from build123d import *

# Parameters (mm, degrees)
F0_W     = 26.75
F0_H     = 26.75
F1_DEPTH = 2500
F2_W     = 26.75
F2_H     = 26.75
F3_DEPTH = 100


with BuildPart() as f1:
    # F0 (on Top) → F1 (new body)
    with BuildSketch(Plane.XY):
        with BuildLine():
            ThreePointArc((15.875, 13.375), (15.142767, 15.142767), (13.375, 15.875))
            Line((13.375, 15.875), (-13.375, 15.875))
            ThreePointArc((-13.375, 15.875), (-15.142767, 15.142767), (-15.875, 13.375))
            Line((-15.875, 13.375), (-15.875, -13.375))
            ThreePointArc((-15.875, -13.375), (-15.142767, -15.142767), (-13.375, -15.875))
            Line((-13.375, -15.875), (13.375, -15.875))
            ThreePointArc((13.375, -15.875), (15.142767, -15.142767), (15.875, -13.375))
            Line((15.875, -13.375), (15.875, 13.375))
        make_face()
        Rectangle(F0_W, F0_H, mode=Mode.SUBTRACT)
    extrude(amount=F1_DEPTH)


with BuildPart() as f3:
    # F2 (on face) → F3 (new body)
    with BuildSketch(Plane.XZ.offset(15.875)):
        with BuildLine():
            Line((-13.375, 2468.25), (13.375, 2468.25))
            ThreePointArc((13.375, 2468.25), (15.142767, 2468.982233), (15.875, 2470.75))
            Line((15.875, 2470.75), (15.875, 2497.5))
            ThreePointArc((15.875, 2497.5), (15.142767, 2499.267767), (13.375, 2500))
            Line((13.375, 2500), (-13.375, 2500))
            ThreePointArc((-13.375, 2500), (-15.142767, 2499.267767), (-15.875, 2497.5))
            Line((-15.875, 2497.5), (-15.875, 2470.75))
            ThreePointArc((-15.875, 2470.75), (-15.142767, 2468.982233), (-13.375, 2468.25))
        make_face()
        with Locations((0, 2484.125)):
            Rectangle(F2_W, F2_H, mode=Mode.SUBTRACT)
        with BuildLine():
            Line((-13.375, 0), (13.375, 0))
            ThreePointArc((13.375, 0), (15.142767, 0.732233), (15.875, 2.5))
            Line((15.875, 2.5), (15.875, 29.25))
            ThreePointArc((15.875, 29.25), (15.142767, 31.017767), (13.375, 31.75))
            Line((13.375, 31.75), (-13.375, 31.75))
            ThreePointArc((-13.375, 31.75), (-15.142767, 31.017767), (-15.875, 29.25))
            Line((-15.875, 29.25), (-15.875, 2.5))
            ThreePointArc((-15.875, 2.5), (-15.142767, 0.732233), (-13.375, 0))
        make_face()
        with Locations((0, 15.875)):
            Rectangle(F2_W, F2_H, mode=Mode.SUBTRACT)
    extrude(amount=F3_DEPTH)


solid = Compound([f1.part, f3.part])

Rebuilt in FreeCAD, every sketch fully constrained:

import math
import FreeCAD as App
import Part
import Sketcher

V = App.Vector


def add_polygon(sketch, points):
    """Adds a closed chain of lines whose ends are joined by coincident constraints."""
    first, n = sketch.GeometryCount, len(points)
    for a, b in zip(points, points[1:] + points[:1]):
        sketch.addGeometry(Part.LineSegment(App.Vector(*a, 0), App.Vector(*b, 0)), False)
    for i in range(n):
        sketch.addConstraint(Sketcher.Constraint("Coincident", first + i, 2, first + (i + 1) % n, 1))

doc = App.newDocument("Part")
body = doc.addObject("PartDesign::Body", "Body")

# Sketch on XY plane
sketch1 = body.newObject("Sketcher::SketchObject", "Sketch")
sketch1.AttachmentSupport = (doc.getObject("XY_Plane"), [""])
sketch1.MapMode = "FlatFace"
sketch1.addGeometry(Part.ArcOfCircle(Part.Circle(V(13.4, 13.4, 0), V(0, 0, 1), 2.5), math.radians(0), math.radians(90)), False)  # 0
sketch1.addGeometry(Part.LineSegment(V(13.4, 15.9, 0), V(-13.4, 15.9, 0)), False)  # 1
sketch1.addGeometry(Part.ArcOfCircle(Part.Circle(V(-13.4, 13.4, 0), V(0, 0, 1), 2.5), math.radians(90), math.radians(180)), False)  # 2
sketch1.addGeometry(Part.LineSegment(V(-15.9, 13.4, 0), V(-15.9, -13.4, 0)), False)  # 3
sketch1.addGeometry(Part.ArcOfCircle(Part.Circle(V(-13.4, -13.4, 0), V(0, 0, 1), 2.5), math.radians(180), math.radians(270)), False)  # 4
sketch1.addGeometry(Part.LineSegment(V(-13.4, -15.9, 0), V(13.4, -15.9, 0)), False)  # 5
sketch1.addGeometry(Part.ArcOfCircle(Part.Circle(V(13.4, -13.4, 0), V(0, 0, 1), 2.5), math.radians(-90), math.radians(0)), False)  # 6
sketch1.addGeometry(Part.LineSegment(V(15.9, -13.4, 0), V(15.9, 13.4, 0)), False)  # 7
add_polygon(sketch1, [(13.4, -13.4), (-13.4, -13.4), (-13.4, 13.4), (13.4, 13.4)])  # lines 8-11
sketch1.addConstraint(Sketcher.Constraint("Tangent", 0, 2, 1, 1))
sketch1.addConstraint(Sketcher.Constraint("Tangent", 1, 2, 2, 1))
sketch1.addConstraint(Sketcher.Constraint("Tangent", 2, 2, 3, 1))
sketch1.addConstraint(Sketcher.Constraint("Tangent", 3, 2, 4, 1))
sketch1.addConstraint(Sketcher.Constraint("Tangent", 4, 2, 5, 1))
sketch1.addConstraint(Sketcher.Constraint("Tangent", 5, 2, 6, 1))
sketch1.addConstraint(Sketcher.Constraint("Tangent", 6, 2, 7, 1))
sketch1.addConstraint(Sketcher.Constraint("Tangent", 7, 2, 0, 1))
sketch1.addConstraint(Sketcher.Constraint("Horizontal", 1))
sketch1.addConstraint(Sketcher.Constraint("Vertical", 3))
sketch1.addConstraint(Sketcher.Constraint("Horizontal", 5))
sketch1.addConstraint(Sketcher.Constraint("Vertical", 7))
sketch1.addConstraint(Sketcher.Constraint("Horizontal", 8))
sketch1.addConstraint(Sketcher.Constraint("Vertical", 9))
sketch1.addConstraint(Sketcher.Constraint("Horizontal", 10))
sketch1.addConstraint(Sketcher.Constraint("Vertical", 11))
sketch1.addConstraint(Sketcher.Constraint("Coincident", 8, 2, 4, 3))
sketch1.addConstraint(Sketcher.Constraint("Coincident", 9, 2, 2, 3))
sketch1.addConstraint(Sketcher.Constraint("Coincident", 10, 2, 0, 3))
sketch1.addConstraint(Sketcher.Constraint("Equal", 4, 6))
sketch1.addConstraint(Sketcher.Constraint("Symmetric", 0, 3, 4, 3, -1, 1))
sketch1.addConstraint(Sketcher.Constraint("Equal", 10, 3))
sketch1.addConstraint(Sketcher.Constraint("Radius", 0, 2.5))
sketch1.addConstraint(Sketcher.Constraint("DistanceX", 1, 2, 1, 1, 26.75))
pad1 = body.newObject("PartDesign::Pad", "Pad")
pad1.Profile = sketch1
pad1.Length = 2500
body2 = doc.addObject("PartDesign::Body", "Body001")
body2.AllowCompound = True

# Sketch on XZ plane
sketch2 = body2.newObject("Sketcher::SketchObject", "Sketch001")
sketch2.AttachmentSupport = (doc.getObject("XZ_Plane001"), [""])
sketch2.MapMode = "FlatFace"
sketch2.AttachmentOffset = App.Placement(V(0, 0, 15.875), App.Rotation())
sketch2.addGeometry(Part.LineSegment(V(-13.4, 2468.2, 0), V(13.4, 2468.2, 0)), False)  # 0
sketch2.addGeometry(Part.ArcOfCircle(Part.Circle(V(13.4, 2470.7, 0), V(0, 0, 1), 2.5), math.radians(-90), math.radians(0)), False)  # 1
sketch2.addGeometry(Part.LineSegment(V(15.9, 2470.8, 0), V(15.9, 2497.5, 0)), False)  # 2
sketch2.addGeometry(Part.ArcOfCircle(Part.Circle(V(13.4, 2497.5, 0), V(0, 0, 1), 2.5), math.radians(0), math.radians(90)), False)  # 3
sketch2.addGeometry(Part.LineSegment(V(13.4, 2500, 0), V(-13.4, 2500, 0)), False)  # 4
sketch2.addGeometry(Part.ArcOfCircle(Part.Circle(V(-13.4, 2497.5, 0), V(0, 0, 1), 2.5), math.radians(90), math.radians(180)), False)  # 5
sketch2.addGeometry(Part.LineSegment(V(-15.9, 2497.5, 0), V(-15.9, 2470.8, 0)), False)  # 6
sketch2.addGeometry(Part.ArcOfCircle(Part.Circle(V(-13.4, 2470.7, 0), V(0, 0, 1), 2.5), math.radians(180), math.radians(270)), False)  # 7
add_polygon(sketch2, [(13.4, 2470.8), (-13.4, 2470.8), (-13.4, 2497.5), (13.4, 2497.5)])  # lines 8-11
sketch2.addGeometry(Part.LineSegment(V(-13.4, 0, 0), V(13.4, 0, 0)), False)  # 12
sketch2.addGeometry(Part.ArcOfCircle(Part.Circle(V(13.4, 2.5, 0), V(0, 0, 1), 2.5), math.radians(-90), math.radians(0)), False)  # 13
sketch2.addGeometry(Part.LineSegment(V(15.9, 2.5, 0), V(15.9, 29.2, 0)), False)  # 14
sketch2.addGeometry(Part.ArcOfCircle(Part.Circle(V(13.4, 29.3, 0), V(0, 0, 1), 2.5), math.radians(0), math.radians(90)), False)  # 15
sketch2.addGeometry(Part.LineSegment(V(13.4, 31.8, 0), V(-13.4, 31.8, 0)), False)  # 16
sketch2.addGeometry(Part.ArcOfCircle(Part.Circle(V(-13.4, 29.3, 0), V(0, 0, 1), 2.5), math.radians(90), math.radians(180)), False)  # 17
sketch2.addGeometry(Part.LineSegment(V(-15.9, 29.2, 0), V(-15.9, 2.5, 0)), False)  # 18
sketch2.addGeometry(Part.ArcOfCircle(Part.Circle(V(-13.4, 2.5, 0), V(0, 0, 1), 2.5), math.radians(180), math.radians(270)), False)  # 19
add_polygon(sketch2, [(13.4, 2.5), (-13.4, 2.5), (-13.4, 29.2), (13.4, 29.2)])  # lines 20-23
sketch2.addConstraint(Sketcher.Constraint("Tangent", 0, 2, 1, 1))
sketch2.addConstraint(Sketcher.Constraint("Tangent", 1, 2, 2, 1))
sketch2.addConstraint(Sketcher.Constraint("Tangent", 2, 2, 3, 1))
sketch2.addConstraint(Sketcher.Constraint("Tangent", 3, 2, 4, 1))
sketch2.addConstraint(Sketcher.Constraint("Tangent", 4, 2, 5, 1))
sketch2.addConstraint(Sketcher.Constraint("Tangent", 5, 2, 6, 1))
sketch2.addConstraint(Sketcher.Constraint("Tangent", 6, 2, 7, 1))
sketch2.addConstraint(Sketcher.Constraint("Tangent", 7, 2, 0, 1))
sketch2.addConstraint(Sketcher.Constraint("Tangent", 12, 2, 13, 1))
sketch2.addConstraint(Sketcher.Constraint("Tangent", 13, 2, 14, 1))
sketch2.addConstraint(Sketcher.Constraint("Tangent", 14, 2, 15, 1))
sketch2.addConstraint(Sketcher.Constraint("Tangent", 15, 2, 16, 1))
sketch2.addConstraint(Sketcher.Constraint("Tangent", 16, 2, 17, 1))
sketch2.addConstraint(Sketcher.Constraint("Tangent", 17, 2, 18, 1))
sketch2.addConstraint(Sketcher.Constraint("Tangent", 18, 2, 19, 1))
sketch2.addConstraint(Sketcher.Constraint("Tangent", 19, 2, 12, 1))
sketch2.addConstraint(Sketcher.Constraint("Horizontal", 0))
sketch2.addConstraint(Sketcher.Constraint("Vertical", 2))
sketch2.addConstraint(Sketcher.Constraint("Horizontal", 4))
sketch2.addConstraint(Sketcher.Constraint("Vertical", 6))
sketch2.addConstraint(Sketcher.Constraint("Horizontal", 8))
sketch2.addConstraint(Sketcher.Constraint("Vertical", 9))
sketch2.addConstraint(Sketcher.Constraint("Horizontal", 10))
sketch2.addConstraint(Sketcher.Constraint("Vertical", 11))
sketch2.addConstraint(Sketcher.Constraint("Horizontal", 12))
sketch2.addConstraint(Sketcher.Constraint("Vertical", 14))
sketch2.addConstraint(Sketcher.Constraint("Horizontal", 16))
sketch2.addConstraint(Sketcher.Constraint("Vertical", 18))
sketch2.addConstraint(Sketcher.Constraint("Horizontal", 20))
sketch2.addConstraint(Sketcher.Constraint("Vertical", 21))
sketch2.addConstraint(Sketcher.Constraint("Horizontal", 22))
sketch2.addConstraint(Sketcher.Constraint("Vertical", 23))
sketch2.addConstraint(Sketcher.Constraint("Coincident", 8, 2, 7, 3))
sketch2.addConstraint(Sketcher.Constraint("Coincident", 9, 2, 5, 3))
sketch2.addConstraint(Sketcher.Constraint("Coincident", 10, 2, 3, 3))
sketch2.addConstraint(Sketcher.Constraint("Coincident", 20, 2, 19, 3))
sketch2.addConstraint(Sketcher.Constraint("Coincident", 21, 2, 17, 3))
sketch2.addConstraint(Sketcher.Constraint("Coincident", 22, 2, 15, 3))
sketch2.addConstraint(Sketcher.Constraint("Equal", 1, 3))
sketch2.addConstraint(Sketcher.Constraint("Equal", 7, 13))
sketch2.addConstraint(Sketcher.Constraint("Equal", 13, 15))
sketch2.addConstraint(Sketcher.Constraint("Symmetric", 12, 2, 19, 2, -1, 1))
sketch2.addConstraint(Sketcher.Constraint("Vertical", 3, 3, 13, 3))
sketch2.addConstraint(Sketcher.Constraint("Vertical", 7, 3, 17, 3))
sketch2.addConstraint(Sketcher.Constraint("Equal", 22, 2))
sketch2.addConstraint(Sketcher.Constraint("Equal", 11, 14))
sketch2.addConstraint(Sketcher.Constraint("Radius", 1, 2.5))
sketch2.addConstraint(Sketcher.Constraint("DistanceY", -1, 1, 3, 2, 2500.0))
sketch2.addConstraint(Sketcher.Constraint("DistanceY", 15, 3, 0, 2, 2439.0))
pad2 = body2.newObject("PartDesign::Pad", "Pad001")
pad2.Profile = sketch2
pad2.Length = 100

doc.recompute()
